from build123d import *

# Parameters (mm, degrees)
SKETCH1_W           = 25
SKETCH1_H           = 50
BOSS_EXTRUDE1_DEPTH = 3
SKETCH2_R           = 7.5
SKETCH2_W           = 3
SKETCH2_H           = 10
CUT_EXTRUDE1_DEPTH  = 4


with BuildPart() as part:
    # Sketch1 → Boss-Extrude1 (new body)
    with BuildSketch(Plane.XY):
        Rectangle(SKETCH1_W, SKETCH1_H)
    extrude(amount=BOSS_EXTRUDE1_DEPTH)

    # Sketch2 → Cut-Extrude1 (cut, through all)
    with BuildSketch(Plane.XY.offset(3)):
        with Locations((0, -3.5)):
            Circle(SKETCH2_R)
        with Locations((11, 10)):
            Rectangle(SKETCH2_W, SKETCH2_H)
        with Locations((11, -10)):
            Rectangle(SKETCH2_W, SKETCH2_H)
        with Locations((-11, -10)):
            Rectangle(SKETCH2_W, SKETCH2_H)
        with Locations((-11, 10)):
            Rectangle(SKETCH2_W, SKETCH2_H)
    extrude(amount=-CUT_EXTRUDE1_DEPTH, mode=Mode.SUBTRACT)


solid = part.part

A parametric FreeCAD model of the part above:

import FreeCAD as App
import Part
import Sketcher

doc = App.newDocument("Part")
body = doc.addObject("PartDesign::Body", "Body")

sketch1 = body.newObject("Sketcher::SketchObject", "Sketch")
sketch1.AttachmentSupport = (doc.getObject("XY_Plane"), [""])
sketch1.MapMode = "FlatFace"
sketch1.addGeometry(Part.LineSegment(App.Vector(-12.5, 25, 0), App.Vector(-12.5, -25, 0)), False)
sketch1.addGeometry(Part.LineSegment(App.Vector(-12.5, -25, 0), App.Vector(12.5, -25, 0)), False)
sketch1.addGeometry(Part.LineSegment(App.Vector(12.5, -25, 0), App.Vector(12.5, 25, 0)), False)
sketch1.addGeometry(Part.LineSegment(App.Vector(12.5, 25, 0), App.Vector(-12.5, 25, 0)), False)
sketch1.addConstraint(Sketcher.Constraint("Coincident", 0, 2, 1, 1))
sketch1.addConstraint(Sketcher.Constraint("Coincident", 1, 2, 2, 1))
sketch1.addConstraint(Sketcher.Constraint("Coincident", 2, 2, 3, 1))
sketch1.addConstraint(Sketcher.Constraint("Coincident", 3, 2, 0, 1))
sketch1.addConstraint(Sketcher.Constraint("Vertical", 0))
sketch1.addConstraint(Sketcher.Constraint("Horizontal", 1))
sketch1.addConstraint(Sketcher.Constraint("Vertical", 2))
sketch1.addConstraint(Sketcher.Constraint("Horizontal", 3))
sketch1.addConstraint(Sketcher.Constraint("Symmetric", 0, 2, 2, 2, -1, 1))
sketch1.addConstraint(Sketcher.Constraint("DistanceX", 1, 1, 1, 2, 25.0))
sketch1.addConstraint(Sketcher.Constraint("DistanceY", 0, 2, 0, 1, 50.0))
pad1 = body.newObject("PartDesign::Pad", "Pad")
pad1.Profile = sketch1
pad1.Length = 3

sketch2 = body.newObject("Sketcher::SketchObject", "Sketch001")
sketch2.AttachmentSupport = (doc.getObject("XY_Plane"), [""])
sketch2.MapMode = "FlatFace"
sketch2.AttachmentOffset = App.Placement(App.Vector(0, 0, 3), App.Rotation())
sketch2.addGeometry(Part.Circle(App.Vector(0, -3.5, 0), App.Vector(0, 0, 1), 7.5), False)
sketch2.addGeometry(Part.LineSegment(App.Vector(9.5, 15, 0), App.Vector(9.5, 5, 0)), False)
sketch2.addGeometry(Part.LineSegment(App.Vector(9.5, 5, 0), App.Vector(12.5, 5, 0)), False)
sketch2.addGeometry(Part.LineSegment(App.Vector(12.5, 5, 0), App.Vector(12.5, 15, 0)), False)
sketch2.addGeometry(Part.LineSegment(App.Vector(12.5, 15, 0), App.Vector(9.5, 15, 0)), False)
sketch2.addGeometry(Part.LineSegment(App.Vector(9.5, -5, 0), App.Vector(9.5, -15, 0)), False)
sketch2.addGeometry(Part.LineSegment(App.Vector(9.5, -15, 0), App.Vector(12.5, -15, 0)), False)
sketch2.addGeometry(Part.LineSegment(App.Vector(12.5, -15, 0), App.Vector(12.5, -5, 0)), False)
sketch2.addGeometry(Part.LineSegment(App.Vector(12.5, -5, 0), App.Vector(9.5, -5, 0)), False)
sketch2.addGeometry(Part.LineSegment(App.Vector(-12.5, -5, 0), App.Vector(-12.5, -15, 0)), False)
sketch2.addGeometry(Part.LineSegment(App.Vector(-12.5, -15, 0), App.Vector(-9.5, -15, 0)), False)
sketch2.addGeometry(Part.LineSegment(App.Vector(-9.5, -15, 0), App.Vector(-9.5, -5, 0)), False)
sketch2.addGeometry(Part.LineSegment(App.Vector(-9.5, -5, 0), App.Vector(-12.5, -5, 0)), False)
sketch2.addGeometry(Part.LineSegment(App.Vector(-12.5, 15, 0), App.Vector(-12.5, 5, 0)), False)
sketch2.addGeometry(Part.LineSegment(App.Vector(-12.5, 5, 0), App.Vector(-9.5, 5, 0)), False)
sketch2.addGeometry(Part.LineSegment(App.Vector(-9.5, 5, 0), App.Vector(-9.5, 15, 0)), False)
sketch2.addGeometry(Part.LineSegment(App.Vector(-9.5, 15, 0), App.Vector(-12.5, 15, 0)), False)
sketch2.addConstraint(Sketcher.Constraint("Coincident", 1, 2, 2, 1))
sketch2.addConstraint(Sketcher.Constraint("Coincident", 2, 2, 3, 1))
sketch2.addConstraint(Sketcher.Constraint("Coincident", 3, 2, 4, 1))
sketch2.addConstraint(Sketcher.Constraint("Coincident", 4, 2, 1, 1))
sketch2.addConstraint(Sketcher.Constraint("Coincident", 5, 2, 6, 1))
sketch2.addConstraint(Sketcher.Constraint("Coincident", 6, 2, 7, 1))
sketch2.addConstraint(Sketcher.Constraint("Coincident", 7, 2, 8, 1))
sketch2.addConstraint(Sketcher.Constraint("Coincident", 8, 2, 5, 1))
sketch2.addConstraint(Sketcher.Constraint("Coincident", 9, 2, 10, 1))
sketch2.addConstraint(Sketcher.Constraint("Coincident", 10, 2, 11, 1))
sketch2.addConstraint(Sketcher.Constraint("Coincident", 11, 2, 12, 1))
sketch2.addConstraint(Sketcher.Constraint("Coincident", 12, 2, 9, 1))
sketch2.addConstraint(Sketcher.Constraint("Coincident", 13, 2, 14, 1))
sketch2.addConstraint(Sketcher.Constraint("Coincident", 14, 2, 15, 1))
sketch2.addConstraint(Sketcher.Constraint("Coincident", 15, 2, 16, 1))
sketch2.addConstraint(Sketcher.Constraint("Coincident", 16, 2, 13, 1))
sketch2.addConstraint(Sketcher.Constraint("Vertical", 1))
sketch2.addConstraint(Sketcher.Constraint("Horizontal", 2))
sketch2.addConstraint(Sketcher.Constraint("Vertical", 3))
sketch2.addConstraint(Sketcher.Constraint("Horizontal", 4))
sketch2.addConstraint(Sketcher.Constraint("Vertical", 5))
sketch2.addConstraint(Sketcher.Constraint("Horizontal", 6))
sketch2.addConstraint(Sketcher.Constraint("Vertical", 7))
sketch2.addConstraint(Sketcher.Constraint("Horizontal", 8))
sketch2.addConstraint(Sketcher.Constraint("Vertical", 9))
sketch2.addConstraint(Sketcher.Constraint("Horizontal", 10))
sketch2.addConstraint(Sketcher.Constraint("Vertical", 11))
sketch2.addConstraint(Sketcher.Constraint("Horizontal", 12))
sketch2.addConstraint(Sketcher.Constraint("Vertical", 13))
sketch2.addConstraint(Sketcher.Constraint("Horizontal", 14))
sketch2.addConstraint(Sketcher.Constraint("Vertical", 15))
sketch2.addConstraint(Sketcher.Constraint("Horizontal", 16))
sketch2.addConstraint(Sketcher.Constraint("Symmetric", 3, 2, 9, 2, -1, 1))
sketch2.addConstraint(Sketcher.Constraint("Symmetric", 1, 2, 11, 2, -1, 1))
sketch2.addConstraint(Sketcher.Constraint("Symmetric", 7, 2, 13, 2, -1, 1))
sketch2.addConstraint(Sketcher.Constraint("Symmetric", 5, 2, 15, 2, -1, 1))
sketch2.addConstraint(Sketcher.Constraint("Symmetric", 6, 2, 9, 2, -2))
sketch2.addConstraint(Sketcher.Constraint("Symmetric", 8, 2, 11, 2, -2))
sketch2.addConstraint(Sketcher.Constraint("PointOnObject", 0, 3, -2))
sketch2.addConstraint(Sketcher.Constraint("Diameter", 0, 15.0))
sketch2.addConstraint(Sketcher.Constraint("DistanceX", 2, 1, 2, 2, 3.0))
sketch2.addConstraint(Sketcher.Constraint("DistanceY", 1, 2, 1, 1, 10.0))
sketch2.addConstraint(Sketcher.Constraint("DistanceY", -1, 1, 1, 2, 5.0))
sketch2.addConstraint(Sketcher.Constraint("DistanceX", 9, 2, 5, 2, 22.0))
sketch2.addConstraint(Sketcher.Constraint("DistanceY", 0, 3, -1, 1, 3.5))
pocket1 = body.newObject("PartDesign::Pocket", "Pocket")
pocket1.Profile = sketch2
pocket1.Type = "ThroughAll"

doc.recompute()
